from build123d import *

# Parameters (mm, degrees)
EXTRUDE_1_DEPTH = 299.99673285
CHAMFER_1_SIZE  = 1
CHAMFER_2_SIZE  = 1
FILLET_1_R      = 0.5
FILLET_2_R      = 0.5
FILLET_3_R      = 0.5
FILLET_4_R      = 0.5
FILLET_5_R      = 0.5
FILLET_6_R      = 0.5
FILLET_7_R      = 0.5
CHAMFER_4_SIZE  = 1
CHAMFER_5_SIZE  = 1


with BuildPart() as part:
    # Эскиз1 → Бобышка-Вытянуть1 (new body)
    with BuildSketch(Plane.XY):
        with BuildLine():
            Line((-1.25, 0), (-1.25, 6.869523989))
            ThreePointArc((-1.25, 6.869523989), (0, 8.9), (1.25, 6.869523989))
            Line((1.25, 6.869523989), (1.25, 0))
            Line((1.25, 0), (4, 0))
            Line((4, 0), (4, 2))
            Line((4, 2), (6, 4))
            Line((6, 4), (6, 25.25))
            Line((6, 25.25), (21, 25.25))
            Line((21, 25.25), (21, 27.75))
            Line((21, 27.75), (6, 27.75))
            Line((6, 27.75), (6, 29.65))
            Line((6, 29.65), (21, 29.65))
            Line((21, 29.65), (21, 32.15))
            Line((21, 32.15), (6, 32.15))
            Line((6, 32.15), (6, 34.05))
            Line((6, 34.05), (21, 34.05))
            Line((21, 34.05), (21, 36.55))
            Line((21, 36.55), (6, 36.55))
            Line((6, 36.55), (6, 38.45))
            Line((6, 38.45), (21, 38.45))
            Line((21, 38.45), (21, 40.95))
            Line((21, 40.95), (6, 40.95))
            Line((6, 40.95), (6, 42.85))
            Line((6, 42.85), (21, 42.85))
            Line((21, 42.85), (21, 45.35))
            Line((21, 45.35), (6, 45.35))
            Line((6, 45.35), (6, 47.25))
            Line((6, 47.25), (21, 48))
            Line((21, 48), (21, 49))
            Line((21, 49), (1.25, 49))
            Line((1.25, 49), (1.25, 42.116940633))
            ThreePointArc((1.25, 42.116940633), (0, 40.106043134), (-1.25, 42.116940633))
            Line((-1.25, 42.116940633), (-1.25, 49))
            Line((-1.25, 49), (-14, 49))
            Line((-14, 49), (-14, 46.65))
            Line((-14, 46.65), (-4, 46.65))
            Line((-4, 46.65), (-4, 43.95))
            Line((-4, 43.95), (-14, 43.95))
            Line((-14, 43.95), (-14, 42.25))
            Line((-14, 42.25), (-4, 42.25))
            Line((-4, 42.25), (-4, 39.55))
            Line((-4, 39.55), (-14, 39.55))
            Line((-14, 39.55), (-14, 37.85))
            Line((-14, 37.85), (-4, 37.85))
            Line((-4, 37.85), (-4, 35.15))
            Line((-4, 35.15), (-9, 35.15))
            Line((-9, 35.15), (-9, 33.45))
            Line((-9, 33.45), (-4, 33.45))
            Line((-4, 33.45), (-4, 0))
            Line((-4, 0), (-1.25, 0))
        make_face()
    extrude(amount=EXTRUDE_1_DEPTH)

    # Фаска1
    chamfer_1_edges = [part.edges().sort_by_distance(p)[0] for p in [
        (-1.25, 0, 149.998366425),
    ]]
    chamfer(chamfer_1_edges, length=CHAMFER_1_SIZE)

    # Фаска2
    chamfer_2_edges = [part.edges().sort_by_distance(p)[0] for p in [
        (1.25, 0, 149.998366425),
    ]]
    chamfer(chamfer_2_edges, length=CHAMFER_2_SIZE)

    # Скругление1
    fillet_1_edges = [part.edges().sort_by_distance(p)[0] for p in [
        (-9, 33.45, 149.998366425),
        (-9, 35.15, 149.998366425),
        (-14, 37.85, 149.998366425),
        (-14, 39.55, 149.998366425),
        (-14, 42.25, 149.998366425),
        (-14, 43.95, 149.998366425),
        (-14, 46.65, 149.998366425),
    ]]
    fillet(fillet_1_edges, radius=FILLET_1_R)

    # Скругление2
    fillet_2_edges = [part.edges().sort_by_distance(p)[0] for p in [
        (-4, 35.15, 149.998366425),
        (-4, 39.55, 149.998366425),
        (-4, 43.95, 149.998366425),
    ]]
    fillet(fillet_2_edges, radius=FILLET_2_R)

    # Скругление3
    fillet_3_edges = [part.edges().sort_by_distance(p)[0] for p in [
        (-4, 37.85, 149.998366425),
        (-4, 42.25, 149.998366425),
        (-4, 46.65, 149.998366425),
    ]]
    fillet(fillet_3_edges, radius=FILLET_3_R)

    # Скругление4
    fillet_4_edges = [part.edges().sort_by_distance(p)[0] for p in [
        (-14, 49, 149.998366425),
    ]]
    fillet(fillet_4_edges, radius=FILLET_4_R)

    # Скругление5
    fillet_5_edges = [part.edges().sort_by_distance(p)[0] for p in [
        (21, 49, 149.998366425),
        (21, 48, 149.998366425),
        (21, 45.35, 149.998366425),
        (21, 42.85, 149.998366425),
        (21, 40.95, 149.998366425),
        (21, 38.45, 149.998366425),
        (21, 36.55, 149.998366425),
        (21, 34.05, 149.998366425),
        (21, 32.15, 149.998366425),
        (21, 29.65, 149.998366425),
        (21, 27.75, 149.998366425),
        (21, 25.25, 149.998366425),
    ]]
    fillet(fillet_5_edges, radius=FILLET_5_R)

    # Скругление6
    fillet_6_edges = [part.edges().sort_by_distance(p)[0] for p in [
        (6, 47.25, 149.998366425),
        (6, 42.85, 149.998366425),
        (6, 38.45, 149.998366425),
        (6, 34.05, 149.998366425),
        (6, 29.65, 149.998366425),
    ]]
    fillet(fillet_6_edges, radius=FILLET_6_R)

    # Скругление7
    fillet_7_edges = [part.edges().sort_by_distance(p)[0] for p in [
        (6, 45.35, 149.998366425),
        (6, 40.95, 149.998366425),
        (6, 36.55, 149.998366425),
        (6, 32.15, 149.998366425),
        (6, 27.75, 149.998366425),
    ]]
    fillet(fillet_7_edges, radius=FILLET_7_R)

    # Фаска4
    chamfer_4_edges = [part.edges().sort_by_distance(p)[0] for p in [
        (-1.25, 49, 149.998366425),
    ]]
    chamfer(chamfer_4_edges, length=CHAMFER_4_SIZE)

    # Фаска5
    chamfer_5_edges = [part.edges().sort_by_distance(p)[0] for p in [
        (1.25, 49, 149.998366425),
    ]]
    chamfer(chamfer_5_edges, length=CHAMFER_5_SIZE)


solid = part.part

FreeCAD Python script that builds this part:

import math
import FreeCAD as App
import Part
import Sketcher
Q = App.Units.Quantity


def edges_at(feature, points):
    """Names of the edges that pass closest to the given points."""
    edges = feature.Shape.Edges
    near = lambda p: min(range(len(edges)), key=lambda i: edges[i].distToShape(Part.Vertex(*p))[0])
    return sorted({f"Edge{near(p) + 1}" for p in points})

doc = App.newDocument("Part")
body = doc.addObject("PartDesign::Body", "Body")

# Sketch on XY plane
sketch1 = doc.addObject("Sketcher::SketchObject", "Sketch")
body.addObject(sketch1)
sketch1.AttachmentSupport = (doc.XY_Plane, [""])
sketch1.MapMode = "FlatFace"
sketch1.addGeometry([
    Part.LineSegment(App.Vector(-1.2, 0, 0), App.Vector(-1.2, 6.9, 0)),  # 0
    Part.ArcOfCircle(Part.Circle(App.Vector(0, 7.5, 0), App.Vector(0, 0, 1), 1.4), math.radians(-27), math.radians(207)),  # 1
    Part.LineSegment(App.Vector(1.2, 6.9, 0), App.Vector(1.2, 0, 0)),  # 2
    Part.LineSegment(App.Vector(1.2, 0, 0), App.Vector(4, 0, 0)),  # 3
    Part.LineSegment(App.Vector(4, 0, 0), App.Vector(4, 2, 0)),  # 4
    Part.LineSegment(App.Vector(4, 2, 0), App.Vector(6, 4, 0)),  # 5
    Part.LineSegment(App.Vector(6, 4, 0), App.Vector(6, 25.2, 0)),  # 6
    Part.LineSegment(App.Vector(6, 25.2, 0), App.Vector(21, 25.2, 0)),  # 7
    Part.LineSegment(App.Vector(21, 25.2, 0), App.Vector(21, 27.8, 0)),  # 8
    Part.LineSegment(App.Vector(21, 27.8, 0), App.Vector(6, 27.8, 0)),  # 9
    Part.LineSegment(App.Vector(6, 27.8, 0), App.Vector(6, 29.6, 0)),  # 10
    Part.LineSegment(App.Vector(6, 29.6, 0), App.Vector(21, 29.6, 0)),  # 11
    Part.LineSegment(App.Vector(21, 29.6, 0), App.Vector(21, 32.1, 0)),  # 12
    Part.LineSegment(App.Vector(21, 32.1, 0), App.Vector(6, 32.1, 0)),  # 13
    Part.LineSegment(App.Vector(6, 32.1, 0), App.Vector(6, 34, 0)),  # 14
    Part.LineSegment(App.Vector(6, 34, 0), App.Vector(21, 34, 0)),  # 15
    Part.LineSegment(App.Vector(21, 34, 0), App.Vector(21, 36.5, 0)),  # 16
    Part.LineSegment(App.Vector(21, 36.5, 0), App.Vector(6, 36.5, 0)),  # 17
    Part.LineSegment(App.Vector(6, 36.5, 0), App.Vector(6, 38.5, 0)),  # 18
    Part.LineSegment(App.Vector(6, 38.5, 0), App.Vector(21, 38.5, 0)),  # 19
    Part.LineSegment(App.Vector(21, 38.5, 0), App.Vector(21, 41, 0)),  # 20
    Part.LineSegment(App.Vector(21, 41, 0), App.Vector(6, 41, 0)),  # 21
    Part.LineSegment(App.Vector(6, 41, 0), App.Vector(6, 42.9, 0)),  # 22
    Part.LineSegment(App.Vector(6, 42.9, 0), App.Vector(21, 42.9, 0)),  # 23
    Part.LineSegment(App.Vector(21, 42.9, 0), App.Vector(21, 45.4, 0)),  # 24
    Part.LineSegment(App.Vector(21, 45.4, 0), App.Vector(6, 45.4, 0)),  # 25
    Part.LineSegment(App.Vector(6, 45.4, 0), App.Vector(6, 47.2, 0)),  # 26
    Part.LineSegment(App.Vector(6, 47.2, 0), App.Vector(21, 48, 0)),  # 27
    Part.LineSegment(App.Vector(21, 48, 0), App.Vector(21, 49, 0)),  # 28
    Part.LineSegment(App.Vector(21, 49, 0), App.Vector(1.2, 49, 0)),  # 29
    Part.LineSegment(App.Vector(1.2, 49, 0), App.Vector(1.2, 42.1, 0)),  # 30
    Part.ArcOfCircle(Part.Circle(App.Vector(0, 41.5, 0), App.Vector(0, 0, 1), 1.4), math.radians(154), math.radians(386)),  # 31
    Part.LineSegment(App.Vector(-1.2, 42.1, 0), App.Vector(-1.2, 49, 0)),  # 32
    Part.LineSegment(App.Vector(-1.2, 49, 0), App.Vector(-14, 49, 0)),  # 33
    Part.LineSegment(App.Vector(-14, 49, 0), App.Vector(-14, 46.6, 0)),  # 34
    Part.LineSegment(App.Vector(-14, 46.6, 0), App.Vector(-4, 46.6, 0)),  # 35
    Part.LineSegment(App.Vector(-4, 46.6, 0), App.Vector(-4, 44, 0)),  # 36
    Part.LineSegment(App.Vector(-4, 44, 0), App.Vector(-14, 44, 0)),  # 37
    Part.LineSegment(App.Vector(-14, 44, 0), App.Vector(-14, 42.2, 0)),  # 38
    Part.LineSegment(App.Vector(-14, 42.2, 0), App.Vector(-4, 42.2, 0)),  # 39
    Part.LineSegment(App.Vector(-4, 42.2, 0), App.Vector(-4, 39.5, 0)),  # 40
    Part.LineSegment(App.Vector(-4, 39.5, 0), App.Vector(-14, 39.5, 0)),  # 41
    Part.LineSegment(App.Vector(-14, 39.5, 0), App.Vector(-14, 37.9, 0)),  # 42
    Part.LineSegment(App.Vector(-14, 37.9, 0), App.Vector(-4, 37.9, 0)),  # 43
    Part.LineSegment(App.Vector(-4, 37.9, 0), App.Vector(-4, 35.1, 0)),  # 44
    Part.LineSegment(App.Vector(-4, 35.1, 0), App.Vector(-9, 35.1, 0)),  # 45
    Part.LineSegment(App.Vector(-9, 35.1, 0), App.Vector(-9, 33.5, 0)),  # 46
    Part.LineSegment(App.Vector(-9, 33.5, 0), App.Vector(-4, 33.5, 0)),  # 47
    Part.LineSegment(App.Vector(-4, 33.5, 0), App.Vector(-4, 0, 0)),  # 48
    Part.LineSegment(App.Vector(-4, 0, 0), App.Vector(-1.2, 0, 0)),  # 49
], False)
sketch1.addConstraint([
    Sketcher.Constraint("Coincident", 0, 2, 1, 2),
    Sketcher.Constraint("Coincident", 1, 1, 2, 1),
    Sketcher.Constraint("Coincident", 2, 2, 3, 1),
    Sketcher.Constraint("Coincident", 3, 2, 4, 1),
    Sketcher.Constraint("Coincident", 4, 2, 5, 1),
    Sketcher.Constraint("Coincident", 5, 2, 6, 1),
    Sketcher.Constraint("Coincident", 6, 2, 7, 1),
    Sketcher.Constraint("Coincident", 7, 2, 8, 1),
    Sketcher.Constraint("Coincident", 8, 2, 9, 1),
    Sketcher.Constraint("Coincident", 9, 2, 10, 1),
    Sketcher.Constraint("Coincident", 10, 2, 11, 1),
    Sketcher.Constraint("Coincident", 11, 2, 12, 1),
    Sketcher.Constraint("Coincident", 12, 2, 13, 1),
    Sketcher.Constraint("Coincident", 13, 2, 14, 1),
    Sketcher.Constraint("Coincident", 14, 2, 15, 1),
    Sketcher.Constraint("Coincident", 15, 2, 16, 1),
    Sketcher.Constraint("Coincident", 16, 2, 17, 1),
    Sketcher.Constraint("Coincident", 17, 2, 18, 1),
    Sketcher.Constraint("Coincident", 18, 2, 19, 1),
    Sketcher.Constraint("Coincident", 19, 2, 20, 1),
    Sketcher.Constraint("Coincident", 20, 2, 21, 1),
    Sketcher.Constraint("Coincident", 21, 2, 22, 1),
    Sketcher.Constraint("Coincident", 22, 2, 23, 1),
    Sketcher.Constraint("Coincident", 23, 2, 24, 1),
    Sketcher.Constraint("Coincident", 24, 2, 25, 1),
    Sketcher.Constraint("Coincident", 25, 2, 26, 1),
    Sketcher.Constraint("Coincident", 26, 2, 27, 1),
    Sketcher.Constraint("Coincident", 27, 2, 28, 1),
    Sketcher.Constraint("Coincident", 28, 2, 29, 1),
    Sketcher.Constraint("Coincident", 29, 2, 30, 1),
    Sketcher.Constraint("Coincident", 30, 2, 31, 2),
    Sketcher.Constraint("Coincident", 31, 1, 32, 1),
    Sketcher.Constraint("Coincident", 32, 2, 33, 1),
    Sketcher.Constraint("Coincident", 33, 2, 34, 1),
    Sketcher.Constraint("Coincident", 34, 2, 35, 1),
    Sketcher.Constraint("Coincident", 35, 2, 36, 1),
    Sketcher.Constraint("Coincident", 36, 2, 37, 1),
    Sketcher.Constraint("Coincident", 37, 2, 38, 1),
    Sketcher.Constraint("Coincident", 38, 2, 39, 1),
    Sketcher.Constraint("Coincident", 39, 2, 40, 1),
    Sketcher.Constraint("Coincident", 40, 2, 41, 1),
    Sketcher.Constraint("Coincident", 41, 2, 42, 1),
    Sketcher.Constraint("Coincident", 42, 2, 43, 1),
    Sketcher.Constraint("Coincident", 43, 2, 44, 1),
    Sketcher.Constraint("Coincident", 44, 2, 45, 1),
    Sketcher.Constraint("Coincident", 45, 2, 46, 1),
    Sketcher.Constraint("Coincident", 46, 2, 47, 1),
    Sketcher.Constraint("Coincident", 47, 2, 48, 1),
    Sketcher.Constraint("Coincident", 48, 2, 49, 1),
    Sketcher.Constraint("Coincident", 49, 2, 0, 1),
    Sketcher.Constraint("Vertical", 0),
    Sketcher.Constraint("Vertical", 2),
    Sketcher.Constraint("Horizontal", 3),
    Sketcher.Constraint("Vertical", 4),
    Sketcher.Constraint("Vertical", 6),
    Sketcher.Constraint("Horizontal", 7),
    Sketcher.Constraint("Vertical", 8),
    Sketcher.Constraint("Horizontal", 9),
    Sketcher.Constraint("Vertical", 10),
    Sketcher.Constraint("Horizontal", 11),
    Sketcher.Constraint("Vertical", 12),
    Sketcher.Constraint("Horizontal", 13),
    Sketcher.Constraint("Vertical", 14),
    Sketcher.Constraint("Horizontal", 15),
    Sketcher.Constraint("Vertical", 16),
    Sketcher.Constraint("Horizontal", 17),
    Sketcher.Constraint("Vertical", 18),
    Sketcher.Constraint("Horizontal", 19),
    Sketcher.Constraint("Vertical", 20),
    Sketcher.Constraint("Horizontal", 21),
    Sketcher.Constraint("Vertical", 22),
    Sketcher.Constraint("Horizontal", 23),
    Sketcher.Constraint("Vertical", 24),
    Sketcher.Constraint("Horizontal", 25),
    Sketcher.Constraint("Vertical", 26),
    Sketcher.Constraint("Vertical", 28),
    Sketcher.Constraint("Horizontal", 29),
    Sketcher.Constraint("Vertical", 30),
    Sketcher.Constraint("Vertical", 32),
    Sketcher.Constraint("Horizontal", 33),
    Sketcher.Constraint("Vertical", 34),
    Sketcher.Constraint("Horizontal", 35),
    Sketcher.Constraint("Vertical", 36),
    Sketcher.Constraint("Horizontal", 37),
    Sketcher.Constraint("Vertical", 38),
    Sketcher.Constraint("Horizontal", 39),
    Sketcher.Constraint("Vertical", 40),
    Sketcher.Constraint("Horizontal", 41),
    Sketcher.Constraint("Vertical", 42),
    Sketcher.Constraint("Horizontal", 43),
    Sketcher.Constraint("Vertical", 44),
    Sketcher.Constraint("Horizontal", 45),
    Sketcher.Constraint("Vertical", 46),
    Sketcher.Constraint("Horizontal", 47),
    Sketcher.Constraint("Vertical", 48),
    Sketcher.Constraint("Horizontal", 49),
    Sketcher.Constraint("Symmetric", 3, 2, 48, 2, -1, 1),
    Sketcher.Constraint("Symmetric", 0, 2, 1, 1, -2),
    Sketcher.Constraint("Symmetric", 30, 2, 31, 1, -2),
    Sketcher.Constraint("PointOnObject", 2, 2, -1),
    Sketcher.Constraint("Horizontal", 29, 2, 32, 2),
    Sketcher.Constraint("Vertical", 6, 2, 9, 2),
    Sketcher.Constraint("Vertical", 8, 2, 11, 2),
    Sketcher.Constraint("Vertical", 10, 2, 13, 2),
    Sketcher.Constraint("Vertical", 12, 2, 15, 2),
    Sketcher.Constraint("Vertical", 14, 2, 17, 2),
    Sketcher.Constraint("Vertical", 16, 2, 19, 2),
    Sketcher.Constraint("Vertical", 18, 2, 21, 2),
    Sketcher.Constraint("Vertical", 20, 2, 23, 2),
    Sketcher.Constraint("Vertical", 22, 2, 25, 2),
    Sketcher.Constraint("Vertical", 24, 2, 27, 2),
    Sketcher.Constraint("Vertical", 2, 2, 29, 2),
    Sketcher.Constraint("Vertical", 34, 2, 37, 2),
    Sketcher.Constraint("Vertical", 36, 2, 39, 2),
    Sketcher.Constraint("Vertical", 38, 2, 41, 2),
    Sketcher.Constraint("Vertical", 40, 2, 43, 2),
    Sketcher.Constraint("Vertical", 44, 2, 47, 2),
    Sketcher.Constraint("Equal", 8, 12),
    Sketcher.Constraint("Equal", 10, 14),
    Sketcher.Constraint("Equal", 12, 16),
    Sketcher.Constraint("Equal", 14, 18),
    Sketcher.Constraint("Equal", 16, 20),
    Sketcher.Constraint("Equal", 18, 22),
    Sketcher.Constraint("Equal", 20, 24),
    Sketcher.Constraint("Equal", 22, 26),
    Sketcher.Constraint("Equal", 36, 40),
    Sketcher.Constraint("Equal", 38, 42),
    Sketcher.Constraint("Equal", 40, 44),
    Sketcher.Constraint("Equal", 42, 46),
    Sketcher.Constraint("Radius", 1, Q("1.4 mm")),
    Sketcher.Constraint("DistanceX", 7, 1, 7, 2, Q("15 mm")),
    Sketcher.Constraint("DistanceX", 35, 1, 35, 2, Q("10 mm")),
    Sketcher.Constraint("DistanceX", 45, 2, 45, 1, Q("5 mm")),
    Sketcher.Constraint("DistanceY", 4, 1, 4, 2, Q("2 mm")),
    Sketcher.Constraint("DistanceY", 28, 1, 28, 2, Q("1 mm")),
    Sketcher.Constraint("Angle", 5, Q("45 deg")),
    Sketcher.Constraint("DistanceY", 8, 1, 8, 2, Q("2.5 mm")),
    Sketcher.Constraint("DistanceY", 10, 1, 10, 2, Q("1.9 mm")),
    Sketcher.Constraint("DistanceY", 36, 2, 36, 1, Q("2.7 mm")),
    Sketcher.Constraint("DistanceY", 38, 2, 38, 1, Q("1.7 mm")),
    Sketcher.Constraint("DistanceX", -1, 1, 3, 2, Q("4 mm")),
    Sketcher.Constraint("DistanceX", -1, 1, 5, 2, Q("6 mm")),
    Sketcher.Constraint("DistanceY", -1, 1, 27, 2, Q("48 mm")),
    Sketcher.Constraint("DistanceY", 1, 3, 31, 3, Q("34 mm")),
    Sketcher.Constraint("DistanceX", 3, 1, 3, 2, Q("2.75 mm")),
    Sketcher.Constraint("DistanceY", 6, 1, 6, 2, Q("21.25 mm")),
    Sketcher.Constraint("DistanceY", 34, 2, 34, 1, Q("2.35 mm")),
    Sketcher.Constraint("DistanceY", -1, 1, 1, 3, Q("7.5 mm")),
    Sketcher.Constraint("Radius", 31, Q("1.393957 mm")),
])
pad1 = doc.addObject("PartDesign::Pad", "Pad")
body.addObject(pad1)
pad1.Profile = sketch1
pad1.Length = 299.996733
doc.recompute()

chamfer = doc.addObject("PartDesign::Chamfer", "Chamfer")
body.addObject(chamfer)
chamfer.Base = (pad1, edges_at(pad1, [(-1.25, 0, 149.998)]))
chamfer.Size = 1
doc.recompute()

chamfer2 = doc.addObject("PartDesign::Chamfer", "Chamfer001")
body.addObject(chamfer2)
chamfer2.Base = (chamfer, edges_at(chamfer, [(1.25, 0, 149.998)]))
chamfer2.Size = 1
doc.recompute()

fillet = doc.addObject("PartDesign::Fillet", "Fillet")
body.addObject(fillet)
fillet.Base = (chamfer2, edges_at(chamfer2, [
    (-9, 33.45, 149.998),
    (-9, 35.15, 149.998),
    (-14, 37.85, 149.998),
    (-14, 39.55, 149.998),
    (-14, 42.25, 149.998),
    (-14, 43.95, 149.998),
    (-14, 46.65, 149.998),
]))
fillet.Radius = 0.5
doc.recompute()

fillet2 = doc.addObject("PartDesign::Fillet", "Fillet001")
body.addObject(fillet2)
fillet2.Base = (fillet, edges_at(fillet, [(-4, 35.15, 149.998), (-4, 39.55, 149.998), (-4, 43.95, 149.998)]))
fillet2.Radius = 0.5
doc.recompute()

fillet3 = doc.addObject("PartDesign::Fillet", "Fillet002")
body.addObject(fillet3)
fillet3.Base = (fillet2, edges_at(fillet2, [(-4, 37.85, 149.998), (-4, 42.25, 149.998), (-4, 46.65, 149.998)]))
fillet3.Radius = 0.5
doc.recompute()

fillet4 = doc.addObject("PartDesign::Fillet", "Fillet003")
body.addObject(fillet4)
fillet4.Base = (fillet3, edges_at(fillet3, [(-14, 49, 149.998)]))
fillet4.Radius = 0.5
doc.recompute()

fillet5 = doc.addObject("PartDesign::Fillet", "Fillet004")
body.addObject(fillet5)
fillet5.Base = (fillet4, edges_at(fillet4, [
    (21, 49, 149.998),
    (21, 48, 149.998),
    (21, 45.35, 149.998),
    (21, 42.85, 149.998),
    (21, 40.95, 149.998),
    (21, 38.45, 149.998),
    (21, 36.55, 149.998),
    (21, 34.05, 149.998),
    (21, 32.15, 149.998),
    (21, 29.65, 149.998),
    (21, 27.75, 149.998),
    (21, 25.25, 149.998),
]))
fillet5.Radius = 0.5
doc.recompute()

fillet6 = doc.addObject("PartDesign::Fillet", "Fillet005")
body.addObject(fillet6)
fillet6.Base = (fillet5, edges_at(fillet5, [
    (6, 47.25, 149.998),
    (6, 42.85, 149.998),
    (6, 38.45, 149.998),
    (6, 34.05, 149.998),
    (6, 29.65, 149.998),
]))
fillet6.Radius = 0.5
doc.recompute()

fillet7 = doc.addObject("PartDesign::Fillet", "Fillet006")
body.addObject(fillet7)
fillet7.Base = (fillet6, edges_at(fillet6, [
    (6, 45.35, 149.998),
    (6, 40.95, 149.998),
    (6, 36.55, 149.998),
    (6, 32.15, 149.998),
    (6, 27.75, 149.998),
]))
fillet7.Radius = 0.5
doc.recompute()

chamfer3 = doc.addObject("PartDesign::Chamfer", "Chamfer002")
body.addObject(chamfer3)
chamfer3.Base = (fillet7, edges_at(fillet7, [(-1.25, 49, 149.998)]))
chamfer3.Size = 1
doc.recompute()

chamfer4 = doc.addObject("PartDesign::Chamfer", "Chamfer003")
body.addObject(chamfer4)
chamfer4.Base = (chamfer3, edges_at(chamfer3, [(1.25, 49, 149.998)]))
chamfer4.Size = 1

doc.recompute()
